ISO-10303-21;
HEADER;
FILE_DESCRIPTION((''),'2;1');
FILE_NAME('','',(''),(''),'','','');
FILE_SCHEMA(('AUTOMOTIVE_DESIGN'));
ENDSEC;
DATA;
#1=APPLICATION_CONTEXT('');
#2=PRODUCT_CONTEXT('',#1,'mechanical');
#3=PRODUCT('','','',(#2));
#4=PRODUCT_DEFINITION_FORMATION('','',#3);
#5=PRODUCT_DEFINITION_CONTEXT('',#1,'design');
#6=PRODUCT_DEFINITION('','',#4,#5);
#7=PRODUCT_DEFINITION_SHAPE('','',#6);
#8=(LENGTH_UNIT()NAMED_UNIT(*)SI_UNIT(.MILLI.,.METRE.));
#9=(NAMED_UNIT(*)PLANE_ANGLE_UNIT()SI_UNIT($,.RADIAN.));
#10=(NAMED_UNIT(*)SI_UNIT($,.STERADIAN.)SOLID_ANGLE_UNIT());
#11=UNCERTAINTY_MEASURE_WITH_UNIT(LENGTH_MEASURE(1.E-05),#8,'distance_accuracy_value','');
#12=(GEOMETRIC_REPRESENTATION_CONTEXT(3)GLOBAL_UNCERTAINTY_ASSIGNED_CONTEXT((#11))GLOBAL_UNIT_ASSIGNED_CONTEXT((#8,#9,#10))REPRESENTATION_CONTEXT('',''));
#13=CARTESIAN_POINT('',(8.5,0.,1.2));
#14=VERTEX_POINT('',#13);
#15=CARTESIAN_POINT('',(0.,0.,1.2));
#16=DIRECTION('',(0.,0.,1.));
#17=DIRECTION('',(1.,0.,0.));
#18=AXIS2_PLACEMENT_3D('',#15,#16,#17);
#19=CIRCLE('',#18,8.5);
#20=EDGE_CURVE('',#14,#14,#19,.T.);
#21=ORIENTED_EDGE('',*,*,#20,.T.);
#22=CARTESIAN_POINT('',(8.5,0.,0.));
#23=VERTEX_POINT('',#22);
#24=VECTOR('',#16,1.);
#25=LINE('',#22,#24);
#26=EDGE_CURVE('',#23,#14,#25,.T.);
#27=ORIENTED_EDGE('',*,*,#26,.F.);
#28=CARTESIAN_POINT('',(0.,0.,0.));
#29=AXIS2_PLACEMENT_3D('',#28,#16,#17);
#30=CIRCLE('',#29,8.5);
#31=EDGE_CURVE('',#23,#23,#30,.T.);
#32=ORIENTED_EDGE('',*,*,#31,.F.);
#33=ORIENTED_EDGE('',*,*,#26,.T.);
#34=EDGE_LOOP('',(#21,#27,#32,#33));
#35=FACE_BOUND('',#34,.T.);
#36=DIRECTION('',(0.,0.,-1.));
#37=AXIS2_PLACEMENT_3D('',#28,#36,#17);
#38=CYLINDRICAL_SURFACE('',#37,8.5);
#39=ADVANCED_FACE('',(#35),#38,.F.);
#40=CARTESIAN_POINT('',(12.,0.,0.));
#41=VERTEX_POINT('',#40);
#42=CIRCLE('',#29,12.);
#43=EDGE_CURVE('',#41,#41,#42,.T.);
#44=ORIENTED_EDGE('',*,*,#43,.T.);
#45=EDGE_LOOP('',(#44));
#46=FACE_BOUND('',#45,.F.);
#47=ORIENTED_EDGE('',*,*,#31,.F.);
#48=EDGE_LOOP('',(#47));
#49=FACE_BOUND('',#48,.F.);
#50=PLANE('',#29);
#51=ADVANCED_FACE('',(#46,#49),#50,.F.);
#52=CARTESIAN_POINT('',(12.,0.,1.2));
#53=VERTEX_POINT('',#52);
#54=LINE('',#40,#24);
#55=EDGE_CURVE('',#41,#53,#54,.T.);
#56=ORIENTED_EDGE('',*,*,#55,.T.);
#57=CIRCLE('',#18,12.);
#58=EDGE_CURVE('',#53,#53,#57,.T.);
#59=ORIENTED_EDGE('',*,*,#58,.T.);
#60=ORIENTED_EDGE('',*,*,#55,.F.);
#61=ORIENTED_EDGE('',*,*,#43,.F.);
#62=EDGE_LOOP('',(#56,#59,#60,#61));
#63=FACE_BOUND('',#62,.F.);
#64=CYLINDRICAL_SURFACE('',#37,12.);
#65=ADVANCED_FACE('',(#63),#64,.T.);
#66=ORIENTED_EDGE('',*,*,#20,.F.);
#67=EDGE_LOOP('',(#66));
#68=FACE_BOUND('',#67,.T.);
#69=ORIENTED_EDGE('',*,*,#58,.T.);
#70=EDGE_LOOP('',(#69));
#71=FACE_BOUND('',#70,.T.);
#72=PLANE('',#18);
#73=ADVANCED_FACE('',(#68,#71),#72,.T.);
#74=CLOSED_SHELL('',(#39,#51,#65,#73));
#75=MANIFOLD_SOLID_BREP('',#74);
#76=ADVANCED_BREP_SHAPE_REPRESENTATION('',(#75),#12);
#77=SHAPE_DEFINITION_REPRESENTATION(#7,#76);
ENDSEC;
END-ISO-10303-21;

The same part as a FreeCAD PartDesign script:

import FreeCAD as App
import Part
import Sketcher

doc = App.newDocument("Part")
body = doc.addObject("PartDesign::Body", "Body")

# Sketch on XY plane
sketch1 = body.newObject("Sketcher::SketchObject", "Sketch")
sketch1.AttachmentSupport = (doc.getObject("XY_Plane"), [""])
sketch1.MapMode = "FlatFace"
sketch1.addGeometry([
    Part.Circle(App.Vector(0, 0, 0), App.Vector(0, 0, 1), 12),
    Part.Circle(App.Vector(0, 0, 0), App.Vector(0, 0, 1), 8),
], False)
sketch1.addConstraint([
    Sketcher.Constraint("Coincident", 0, 3, -1, 1),
    Sketcher.Constraint("Coincident", 1, 3, -1, 1),
    Sketcher.Constraint("Diameter", 0, 24.0),
    Sketcher.Constraint("Diameter", 1, 17.0),
])
pad1 = body.newObject("PartDesign::Pad", "Pad")
pad1.Profile = sketch1
pad1.Length = 1.2

doc.recompute()
